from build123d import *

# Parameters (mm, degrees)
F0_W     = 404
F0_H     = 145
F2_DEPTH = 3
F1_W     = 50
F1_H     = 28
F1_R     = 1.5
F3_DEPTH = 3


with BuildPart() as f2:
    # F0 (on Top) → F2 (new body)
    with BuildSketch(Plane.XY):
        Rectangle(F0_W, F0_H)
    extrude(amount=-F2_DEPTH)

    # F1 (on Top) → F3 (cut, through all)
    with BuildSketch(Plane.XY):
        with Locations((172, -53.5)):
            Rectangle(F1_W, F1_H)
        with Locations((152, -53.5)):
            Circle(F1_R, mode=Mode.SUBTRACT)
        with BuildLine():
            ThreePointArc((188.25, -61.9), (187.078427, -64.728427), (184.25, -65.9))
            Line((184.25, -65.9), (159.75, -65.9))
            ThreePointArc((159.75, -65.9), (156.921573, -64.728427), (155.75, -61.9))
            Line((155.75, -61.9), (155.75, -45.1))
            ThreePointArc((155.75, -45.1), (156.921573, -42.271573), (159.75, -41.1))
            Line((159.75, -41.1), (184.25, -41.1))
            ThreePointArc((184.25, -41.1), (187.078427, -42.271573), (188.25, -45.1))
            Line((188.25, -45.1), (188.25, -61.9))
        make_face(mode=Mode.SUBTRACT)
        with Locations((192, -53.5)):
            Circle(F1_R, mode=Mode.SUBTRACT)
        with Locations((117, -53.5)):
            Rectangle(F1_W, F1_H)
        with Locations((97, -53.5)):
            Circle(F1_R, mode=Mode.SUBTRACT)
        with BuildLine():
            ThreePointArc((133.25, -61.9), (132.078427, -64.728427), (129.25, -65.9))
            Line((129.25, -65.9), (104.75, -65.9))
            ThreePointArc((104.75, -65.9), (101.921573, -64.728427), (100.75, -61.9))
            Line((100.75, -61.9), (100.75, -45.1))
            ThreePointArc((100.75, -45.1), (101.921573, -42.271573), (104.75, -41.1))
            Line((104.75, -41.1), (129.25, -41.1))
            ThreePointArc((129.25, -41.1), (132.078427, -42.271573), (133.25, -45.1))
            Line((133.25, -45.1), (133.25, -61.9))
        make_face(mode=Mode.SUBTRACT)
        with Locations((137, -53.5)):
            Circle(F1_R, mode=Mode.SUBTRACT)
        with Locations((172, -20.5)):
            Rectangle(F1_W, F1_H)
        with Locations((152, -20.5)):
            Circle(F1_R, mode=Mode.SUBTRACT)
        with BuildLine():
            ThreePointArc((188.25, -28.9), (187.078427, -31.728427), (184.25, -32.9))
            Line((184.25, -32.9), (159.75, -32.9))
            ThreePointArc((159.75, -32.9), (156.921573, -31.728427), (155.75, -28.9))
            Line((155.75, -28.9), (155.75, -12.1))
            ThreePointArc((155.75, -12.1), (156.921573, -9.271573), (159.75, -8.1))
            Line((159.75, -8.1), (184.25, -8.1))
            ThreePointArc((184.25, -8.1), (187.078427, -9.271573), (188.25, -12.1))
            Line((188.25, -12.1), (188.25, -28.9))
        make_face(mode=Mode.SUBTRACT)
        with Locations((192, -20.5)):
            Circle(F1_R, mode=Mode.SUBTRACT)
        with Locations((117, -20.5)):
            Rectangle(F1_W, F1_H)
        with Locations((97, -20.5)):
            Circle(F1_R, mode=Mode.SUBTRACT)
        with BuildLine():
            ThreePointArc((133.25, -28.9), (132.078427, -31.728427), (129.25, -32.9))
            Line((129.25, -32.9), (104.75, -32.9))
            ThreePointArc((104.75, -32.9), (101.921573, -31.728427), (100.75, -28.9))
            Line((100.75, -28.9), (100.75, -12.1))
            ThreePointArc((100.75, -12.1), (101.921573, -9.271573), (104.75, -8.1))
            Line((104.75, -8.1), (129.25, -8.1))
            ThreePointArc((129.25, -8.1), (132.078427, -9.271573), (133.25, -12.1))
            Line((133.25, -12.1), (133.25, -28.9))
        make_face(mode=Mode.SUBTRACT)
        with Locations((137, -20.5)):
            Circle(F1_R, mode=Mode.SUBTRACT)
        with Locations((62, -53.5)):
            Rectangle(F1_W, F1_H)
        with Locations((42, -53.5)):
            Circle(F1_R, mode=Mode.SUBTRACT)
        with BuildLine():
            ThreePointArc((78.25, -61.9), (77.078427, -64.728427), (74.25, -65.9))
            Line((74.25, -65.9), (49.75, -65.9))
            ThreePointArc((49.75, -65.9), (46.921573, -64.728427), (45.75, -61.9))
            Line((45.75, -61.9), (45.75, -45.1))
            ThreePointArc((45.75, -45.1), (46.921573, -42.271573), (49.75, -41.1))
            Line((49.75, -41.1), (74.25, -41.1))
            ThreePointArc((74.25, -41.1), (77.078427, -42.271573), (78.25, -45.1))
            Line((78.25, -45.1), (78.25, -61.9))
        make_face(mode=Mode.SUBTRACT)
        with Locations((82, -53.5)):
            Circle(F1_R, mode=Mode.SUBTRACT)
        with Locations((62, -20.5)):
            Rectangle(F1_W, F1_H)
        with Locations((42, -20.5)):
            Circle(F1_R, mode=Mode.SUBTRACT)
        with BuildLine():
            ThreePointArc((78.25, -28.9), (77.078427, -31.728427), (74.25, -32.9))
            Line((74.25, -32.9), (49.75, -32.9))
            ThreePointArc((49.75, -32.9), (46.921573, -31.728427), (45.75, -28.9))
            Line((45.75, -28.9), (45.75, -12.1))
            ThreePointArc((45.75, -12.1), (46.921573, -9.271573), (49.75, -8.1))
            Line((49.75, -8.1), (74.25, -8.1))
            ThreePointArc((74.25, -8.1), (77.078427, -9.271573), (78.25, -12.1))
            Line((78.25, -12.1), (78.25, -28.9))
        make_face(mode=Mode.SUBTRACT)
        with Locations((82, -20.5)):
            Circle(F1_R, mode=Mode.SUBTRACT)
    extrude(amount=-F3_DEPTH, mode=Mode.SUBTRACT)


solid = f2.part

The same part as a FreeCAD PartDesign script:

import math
import FreeCAD as App
import Part
import Sketcher


def add_polygon(sketch, points):
    """Adds a closed chain of lines whose ends are joined by coincident constraints."""
    first, n = sketch.GeometryCount, len(points)
    for a, b in zip(points, points[1:] + points[:1]):
        sketch.addGeometry(Part.LineSegment(App.Vector(*a, 0), App.Vector(*b, 0)), False)
    for i in range(n):
        sketch.addConstraint(Sketcher.Constraint("Coincident", first + i, 2, first + (i + 1) % n, 1))

doc = App.newDocument("Part")
body = doc.addObject("PartDesign::Body", "Body")
body.AllowCompound = True

sketch1 = doc.addObject("Sketcher::SketchObject", "Sketch")
body.addObject(sketch1)
sketch1.AttachmentSupport = (doc.XY_Plane, [""])
sketch1.MapMode = "FlatFace"
add_polygon(sketch1, [(-202, 72), (-202, -72), (202, -72), (202, 72)])
sketch1.addConstraint([
    Sketcher.Constraint("Vertical", 0),
    Sketcher.Constraint("Horizontal", 1),
    Sketcher.Constraint("Vertical", 2),
    Sketcher.Constraint("Horizontal", 3),
    Sketcher.Constraint("Symmetric", 0, 2, 2, 2, -1, 1),
    Sketcher.Constraint("DistanceX", 1, 1, 1, 2, 404.0),
    Sketcher.Constraint("DistanceY", 0, 2, 0, 1, 145.0),
])
pad1 = doc.addObject("PartDesign::Pad", "Pad")
body.addObject(pad1)
pad1.Profile = sketch1
pad1.Length = 3
pad1.Reversed = True

sketch2 = doc.addObject("Sketcher::SketchObject", "Sketch001")
body.addObject(sketch2)
sketch2.AttachmentSupport = (doc.XY_Plane, [""])
sketch2.MapMode = "FlatFace"
add_polygon(sketch2, [(147, -39.5), (147, -67.5), (197, -67.5), (197, -39.5)])
sketch2.addGeometry(Part.Circle(App.Vector(152, -53.5, 0), App.Vector(0, 0, 1), 1.5), False)
sketch2.addGeometry(Part.LineSegment(App.Vector(188.2, -45.1, 0), App.Vector(188.2, -61.9, 0)), False)
sketch2.addGeometry(Part.ArcOfCircle(Part.Circle(App.Vector(184.2, -61.9, 0), App.Vector(0, 0, 1), 4), math.radians(-90), math.radians(0)), False)
sketch2.addGeometry(Part.LineSegment(App.Vector(184.2, -65.9, 0), App.Vector(159.8, -65.9, 0)), False)
sketch2.addGeometry(Part.ArcOfCircle(Part.Circle(App.Vector(159.8, -61.9, 0), App.Vector(0, 0, 1), 4), math.radians(-180), math.radians(-90)), False)
sketch2.addGeometry(Part.LineSegment(App.Vector(155.8, -61.9, 0), App.Vector(155.8, -45.1, 0)), False)
sketch2.addGeometry(Part.ArcOfCircle(Part.Circle(App.Vector(159.8, -45.1, 0), App.Vector(0, 0, 1), 4), math.radians(90), math.radians(180)), False)
sketch2.addGeometry(Part.LineSegment(App.Vector(159.8, -41.1, 0), App.Vector(184.2, -41.1, 0)), False)
sketch2.addGeometry(Part.ArcOfCircle(Part.Circle(App.Vector(184.2, -45.1, 0), App.Vector(0, 0, 1), 4), math.radians(0), math.radians(90)), False)
sketch2.addGeometry(Part.Circle(App.Vector(192, -53.5, 0), App.Vector(0, 0, 1), 1.5), False)
add_polygon(sketch2, [(92, -39.5), (92, -67.5), (142, -67.5), (142, -39.5)])
sketch2.addGeometry(Part.Circle(App.Vector(97, -53.5, 0), App.Vector(0, 0, 1), 1.5), False)
sketch2.addGeometry(Part.LineSegment(App.Vector(133.2, -45.1, 0), App.Vector(133.2, -61.9, 0)), False)
sketch2.addGeometry(Part.ArcOfCircle(Part.Circle(App.Vector(129.2, -61.9, 0), App.Vector(0, 0, 1), 4), math.radians(-90), math.radians(0)), False)
sketch2.addGeometry(Part.LineSegment(App.Vector(129.2, -65.9, 0), App.Vector(104.8, -65.9, 0)), False)
sketch2.addGeometry(Part.ArcOfCircle(Part.Circle(App.Vector(104.8, -61.9, 0), App.Vector(0, 0, 1), 4), math.radians(-180), math.radians(-90)), False)
sketch2.addGeometry(Part.LineSegment(App.Vector(100.8, -61.9, 0), App.Vector(100.8, -45.1, 0)), False)
sketch2.addGeometry(Part.ArcOfCircle(Part.Circle(App.Vector(104.8, -45.1, 0), App.Vector(0, 0, 1), 4), math.radians(90), math.radians(180)), False)
sketch2.addGeometry(Part.LineSegment(App.Vector(104.8, -41.1, 0), App.Vector(129.2, -41.1, 0)), False)
sketch2.addGeometry(Part.ArcOfCircle(Part.Circle(App.Vector(129.2, -45.1, 0), App.Vector(0, 0, 1), 4), math.radians(0), math.radians(90)), False)
sketch2.addGeometry(Part.Circle(App.Vector(137, -53.5, 0), App.Vector(0, 0, 1), 1.5), False)
add_polygon(sketch2, [(147, -6.5), (147, -34.5), (197, -34.5), (197, -6.5)])
sketch2.addGeometry(Part.Circle(App.Vector(152, -20.5, 0), App.Vector(0, 0, 1), 1.5), False)
sketch2.addGeometry(Part.LineSegment(App.Vector(188.2, -12.1, 0), App.Vector(188.2, -28.9, 0)), False)
sketch2.addGeometry(Part.ArcOfCircle(Part.Circle(App.Vector(184.2, -28.9, 0), App.Vector(0, 0, 1), 4), math.radians(-90), math.radians(0)), False)
sketch2.addGeometry(Part.LineSegment(App.Vector(184.2, -32.9, 0), App.Vector(159.8, -32.9, 0)), False)
sketch2.addGeometry(Part.ArcOfCircle(Part.Circle(App.Vector(159.8, -28.9, 0), App.Vector(0, 0, 1), 4), math.radians(-180), math.radians(-90)), False)
sketch2.addGeometry(Part.LineSegment(App.Vector(155.8, -28.9, 0), App.Vector(155.8, -12.1, 0)), False)
sketch2.addGeometry(Part.ArcOfCircle(Part.Circle(App.Vector(159.8, -12.1, 0), App.Vector(0, 0, 1), 4), math.radians(90), math.radians(180)), False)
sketch2.addGeometry(Part.LineSegment(App.Vector(159.8, -8.1, 0), App.Vector(184.2, -8.1, 0)), False)
sketch2.addGeometry(Part.ArcOfCircle(Part.Circle(App.Vector(184.2, -12.1, 0), App.Vector(0, 0, 1), 4), math.radians(0), math.radians(90)), False)
sketch2.addGeometry(Part.Circle(App.Vector(192, -20.5, 0), App.Vector(0, 0, 1), 1.5), False)
add_polygon(sketch2, [(92, -6.5), (92, -34.5), (142, -34.5), (142, -6.5)])
sketch2.addGeometry(Part.Circle(App.Vector(97, -20.5, 0), App.Vector(0, 0, 1), 1.5), False)
sketch2.addGeometry(Part.Circle(App.Vector(137, -20.5, 0), App.Vector(0, 0, 1), 1.5), False)
sketch2.addGeometry(Part.LineSegment(App.Vector(133.2, -12.1, 0), App.Vector(133.2, -28.9, 0)), False)
sketch2.addGeometry(Part.ArcOfCircle(Part.Circle(App.Vector(129.2, -28.9, 0), App.Vector(0, 0, 1), 4), math.radians(-90), math.radians(0)), False)
sketch2.addGeometry(Part.LineSegment(App.Vector(129.2, -32.9, 0), App.Vector(104.8, -32.9, 0)), False)
sketch2.addGeometry(Part.ArcOfCircle(Part.Circle(App.Vector(104.8, -28.9, 0), App.Vector(0, 0, 1), 4), math.radians(-180), math.radians(-90)), False)
sketch2.addGeometry(Part.LineSegment(App.Vector(100.8, -28.9, 0), App.Vector(100.8, -12.1, 0)), False)
sketch2.addGeometry(Part.ArcOfCircle(Part.Circle(App.Vector(104.8, -12.1, 0), App.Vector(0, 0, 1), 4), math.radians(90), math.radians(180)), False)
sketch2.addGeometry(Part.LineSegment(App.Vector(104.8, -8.1, 0), App.Vector(129.2, -8.1, 0)), False)
sketch2.addGeometry(Part.ArcOfCircle(Part.Circle(App.Vector(129.2, -12.1, 0), App.Vector(0, 0, 1), 4), math.radians(0), math.radians(90)), False)
add_polygon(sketch2, [(37, -39.5), (37, -67.5), (87, -67.5), (87, -39.5)])
sketch2.addGeometry(Part.Circle(App.Vector(42, -53.5, 0), App.Vector(0, 0, 1), 1.5), False)
sketch2.addGeometry(Part.LineSegment(App.Vector(78.2, -45.1, 0), App.Vector(78.2, -61.9, 0)), False)
sketch2.addGeometry(Part.ArcOfCircle(Part.Circle(App.Vector(74.2, -61.9, 0), App.Vector(0, 0, 1), 4), math.radians(-90), math.radians(0)), False)
sketch2.addGeometry(Part.LineSegment(App.Vector(74.2, -65.9, 0), App.Vector(49.8, -65.9, 0)), False)
sketch2.addGeometry(Part.ArcOfCircle(Part.Circle(App.Vector(49.8, -61.9, 0), App.Vector(0, 0, 1), 4), math.radians(-180), math.radians(-90)), False)
sketch2.addGeometry(Part.LineSegment(App.Vector(45.8, -61.9, 0), App.Vector(45.8, -45.1, 0)), False)
sketch2.addGeometry(Part.ArcOfCircle(Part.Circle(App.Vector(49.8, -45.1, 0), App.Vector(0, 0, 1), 4), math.radians(90), math.radians(180)), False)
sketch2.addGeometry(Part.LineSegment(App.Vector(49.8, -41.1, 0), App.Vector(74.2, -41.1, 0)), False)
sketch2.addGeometry(Part.ArcOfCircle(Part.Circle(App.Vector(74.2, -45.1, 0), App.Vector(0, 0, 1), 4), math.radians(0), math.radians(90)), False)
sketch2.addGeometry(Part.Circle(App.Vector(82, -53.5, 0), App.Vector(0, 0, 1), 1.5), False)
add_polygon(sketch2, [(37, -6.5), (37, -34.5), (87, -34.5), (87, -6.5)])
sketch2.addGeometry(Part.Circle(App.Vector(42, -20.5, 0), App.Vector(0, 0, 1), 1.5), False)
sketch2.addGeometry(Part.Circle(App.Vector(82, -20.5, 0), App.Vector(0, 0, 1), 1.5), False)
sketch2.addGeometry(Part.LineSegment(App.Vector(78.2, -12.1, 0), App.Vector(78.2, -28.9, 0)), False)
sketch2.addGeometry(Part.ArcOfCircle(Part.Circle(App.Vector(74.2, -28.9, 0), App.Vector(0, 0, 1), 4), math.radians(-90), math.radians(0)), False)
sketch2.addGeometry(Part.LineSegment(App.Vector(74.2, -32.9, 0), App.Vector(49.8, -32.9, 0)), False)
sketch2.addGeometry(Part.ArcOfCircle(Part.Circle(App.Vector(49.8, -28.9, 0), App.Vector(0, 0, 1), 4), math.radians(-180), math.radians(-90)), False)
sketch2.addGeometry(Part.LineSegment(App.Vector(45.8, -28.9, 0), App.Vector(45.8, -12.1, 0)), False)
sketch2.addGeometry(Part.ArcOfCircle(Part.Circle(App.Vector(49.8, -12.1, 0), App.Vector(0, 0, 1), 4), math.radians(90), math.radians(180)), False)
sketch2.addGeometry(Part.LineSegment(App.Vector(49.8, -8.1, 0), App.Vector(74.2, -8.1, 0)), False)
sketch2.addGeometry(Part.ArcOfCircle(Part.Circle(App.Vector(74.2, -12.1, 0), App.Vector(0, 0, 1), 4), math.radians(0), math.radians(90)), False)
sketch2.addConstraint([
    Sketcher.Constraint("Tangent", 5, 2, 6, 2),
    Sketcher.Constraint("Tangent", 6, 1, 7, 1),
    Sketcher.Constraint("Tangent", 7, 2, 8, 2),
    Sketcher.Constraint("Tangent", 8, 1, 9, 1),
    Sketcher.Constraint("Tangent", 9, 2, 10, 2),
    Sketcher.Constraint("Tangent", 10, 1, 11, 1),
    Sketcher.Constraint("Tangent", 11, 2, 12, 2),
    Sketcher.Constraint("Tangent", 12, 1, 5, 1),
    Sketcher.Constraint("Tangent", 19, 2, 20, 2),
    Sketcher.Constraint("Tangent", 20, 1, 21, 1),
    Sketcher.Constraint("Tangent", 21, 2, 22, 2),
    Sketcher.Constraint("Tangent", 22, 1, 23, 1),
    Sketcher.Constraint("Tangent", 23, 2, 24, 2),
    Sketcher.Constraint("Tangent", 24, 1, 25, 1),
    Sketcher.Constraint("Tangent", 25, 2, 26, 2),
    Sketcher.Constraint("Tangent", 26, 1, 19, 1),
    Sketcher.Constraint("Tangent", 33, 2, 34, 2),
    Sketcher.Constraint("Tangent", 34, 1, 35, 1),
    Sketcher.Constraint("Tangent", 35, 2, 36, 2),
    Sketcher.Constraint("Tangent", 36, 1, 37, 1),
    Sketcher.Constraint("Tangent", 37, 2, 38, 2),
    Sketcher.Constraint("Tangent", 38, 1, 39, 1),
    Sketcher.Constraint("Tangent", 39, 2, 40, 2),
    Sketcher.Constraint("Tangent", 40, 1, 33, 1),
    Sketcher.Constraint("Tangent", 48, 2, 49, 2),
    Sketcher.Constraint("Tangent", 49, 1, 50, 1),
    Sketcher.Constraint("Tangent", 50, 2, 51, 2),
    Sketcher.Constraint("Tangent", 51, 1, 52, 1),
    Sketcher.Constraint("Tangent", 52, 2, 53, 2),
    Sketcher.Constraint("Tangent", 53, 1, 54, 1),
    Sketcher.Constraint("Tangent", 54, 2, 55, 2),
    Sketcher.Constraint("Tangent", 55, 1, 48, 1),
    Sketcher.Constraint("Tangent", 61, 2, 62, 2),
    Sketcher.Constraint("Tangent", 62, 1, 63, 1),
    Sketcher.Constraint("Tangent", 63, 2, 64, 2),
    Sketcher.Constraint("Tangent", 64, 1, 65, 1),
    Sketcher.Constraint("Tangent", 65, 2, 66, 2),
    Sketcher.Constraint("Tangent", 66, 1, 67, 1),
    Sketcher.Constraint("Tangent", 67, 2, 68, 2),
    Sketcher.Constraint("Tangent", 68, 1, 61, 1),
    Sketcher.Constraint("Tangent", 76, 2, 77, 2),
    Sketcher.Constraint("Tangent", 77, 1, 78, 1),
    Sketcher.Constraint("Tangent", 78, 2, 79, 2),
    Sketcher.Constraint("Tangent", 79, 1, 80, 1),
    Sketcher.Constraint("Tangent", 80, 2, 81, 2),
    Sketcher.Constraint("Tangent", 81, 1, 82, 1),
    Sketcher.Constraint("Tangent", 82, 2, 83, 2),
    Sketcher.Constraint("Tangent", 83, 1, 76, 1),
    Sketcher.Constraint("Vertical", 0),
    Sketcher.Constraint("Horizontal", 1),
    Sketcher.Constraint("Vertical", 2),
    Sketcher.Constraint("Horizontal", 3),
    Sketcher.Constraint("Vertical", 5),
    Sketcher.Constraint("Horizontal", 7),
    Sketcher.Constraint("Vertical", 9),
    Sketcher.Constraint("Horizontal", 11),
    Sketcher.Constraint("Vertical", 14),
    Sketcher.Constraint("Horizontal", 15),
    Sketcher.Constraint("Vertical", 16),
    Sketcher.Constraint("Horizontal", 17),
    Sketcher.Constraint("Vertical", 19),
    Sketcher.Constraint("Horizontal", 21),
    Sketcher.Constraint("Vertical", 23),
    Sketcher.Constraint("Horizontal", 25),
    Sketcher.Constraint("Vertical", 28),
    Sketcher.Constraint("Horizontal", 29),
    Sketcher.Constraint("Vertical", 30),
    Sketcher.Constraint("Horizontal", 31),
    Sketcher.Constraint("Vertical", 33),
    Sketcher.Constraint("Horizontal", 35),
    Sketcher.Constraint("Vertical", 37),
    Sketcher.Constraint("Horizontal", 39),
    Sketcher.Constraint("Vertical", 42),
    Sketcher.Constraint("Horizontal", 43),
    Sketcher.Constraint("Vertical", 44),
    Sketcher.Constraint("Horizontal", 45),
    Sketcher.Constraint("Vertical", 48),
    Sketcher.Constraint("Horizontal", 50),
    Sketcher.Constraint("Vertical", 52),
    Sketcher.Constraint("Horizontal", 54),
    Sketcher.Constraint("Vertical", 56),
    Sketcher.Constraint("Horizontal", 57),
    Sketcher.Constraint("Vertical", 58),
    Sketcher.Constraint("Horizontal", 59),
    Sketcher.Constraint("Vertical", 61),
    Sketcher.Constraint("Horizontal", 63),
    Sketcher.Constraint("Vertical", 65),
    Sketcher.Constraint("Horizontal", 67),
    Sketcher.Constraint("Vertical", 70),
    Sketcher.Constraint("Horizontal", 71),
    Sketcher.Constraint("Vertical", 72),
    Sketcher.Constraint("Horizontal", 73),
    Sketcher.Constraint("Vertical", 76),
    Sketcher.Constraint("Horizontal", 78),
    Sketcher.Constraint("Vertical", 80),
    Sketcher.Constraint("Horizontal", 82),
    Sketcher.Constraint("Equal", 6, 8),
    Sketcher.Constraint("Equal", 8, 10),
    Sketcher.Constraint("Equal", 10, 12),
    Sketcher.Constraint("Equal", 4, 13),
    Sketcher.Constraint("Equal", 13, 18),
    Sketcher.Constraint("Equal", 12, 20),
    Sketcher.Constraint("Equal", 20, 22),
    Sketcher.Constraint("Equal", 22, 24),
    Sketcher.Constraint("Equal", 24, 26),
    Sketcher.Constraint("Equal", 18, 27),
    Sketcher.Constraint("Equal", 27, 32),
    Sketcher.Constraint("Equal", 26, 34),
    Sketcher.Constraint("Equal", 34, 36),
    Sketcher.Constraint("Equal", 36, 38),
    Sketcher.Constraint("Equal", 38, 40),
    Sketcher.Constraint("Equal", 32, 41),
    Sketcher.Constraint("Equal", 41, 46),
    Sketcher.Constraint("Equal", 46, 47),
    Sketcher.Constraint("Equal", 40, 49),
    Sketcher.Constraint("Equal", 49, 51),
    Sketcher.Constraint("Equal", 51, 53),
    Sketcher.Constraint("Equal", 53, 55),
    Sketcher.Constraint("Equal", 47, 60),
    Sketcher.Constraint("Equal", 55, 62),
    Sketcher.Constraint("Equal", 62, 64),
    Sketcher.Constraint("Equal", 64, 66),
    Sketcher.Constraint("Equal", 66, 68),
    Sketcher.Constraint("Equal", 60, 69),
    Sketcher.Constraint("Equal", 69, 74),
    Sketcher.Constraint("Equal", 74, 75),
    Sketcher.Constraint("Equal", 68, 77),
    Sketcher.Constraint("Equal", 77, 79),
    Sketcher.Constraint("Equal", 79, 81),
    Sketcher.Constraint("Equal", 81, 83),
    Sketcher.Constraint("Horizontal", 4, 3, 13, 3),
    Sketcher.Constraint("Horizontal", 13, 3, 18, 3),
    Sketcher.Constraint("Horizontal", 8, 3, 20, 3),
    Sketcher.Constraint("Horizontal", 12, 3, 24, 3),
    Sketcher.Constraint("Horizontal", 18, 3, 27, 3),
    Sketcher.Constraint("Horizontal", 32, 3, 41, 3),
    Sketcher.Constraint("Horizontal", 41, 3, 46, 3),
    Sketcher.Constraint("Horizontal", 46, 3, 47, 3),
    Sketcher.Constraint("Horizontal", 36, 3, 49, 3),
    Sketcher.Constraint("Horizontal", 40, 3, 53, 3),
    Sketcher.Constraint("Horizontal", 27, 3, 60, 3),
    Sketcher.Constraint("Horizontal", 22, 3, 62, 3),
    Sketcher.Constraint("Horizontal", 26, 3, 66, 3),
    Sketcher.Constraint("Horizontal", 60, 3, 69, 3),
    Sketcher.Constraint("Horizontal", 47, 3, 74, 3),
    Sketcher.Constraint("Horizontal", 74, 3, 75, 3),
    Sketcher.Constraint("Horizontal", 51, 3, 77, 3),
    Sketcher.Constraint("Horizontal", 55, 3, 81, 3),
    Sketcher.Constraint("Horizontal", 1, 2, 14, 2),
    Sketcher.Constraint("Horizontal", 3, 2, 16, 2),
    Sketcher.Constraint("Horizontal", 29, 2, 42, 2),
    Sketcher.Constraint("Horizontal", 31, 2, 44, 2),
    Sketcher.Constraint("Horizontal", 15, 2, 56, 2),
    Sketcher.Constraint("Horizontal", 17, 2, 58, 2),
    Sketcher.Constraint("Horizontal", 43, 2, 70, 2),
    Sketcher.Constraint("Horizontal", 45, 2, 72, 2),
    Sketcher.Constraint("Vertical", 4, 3, 32, 3),
    Sketcher.Constraint("Vertical", 12, 3, 34, 3),
    Sketcher.Constraint("Vertical", 10, 3, 36, 3),
    Sketcher.Constraint("Vertical", 13, 3, 41, 3),
    Sketcher.Constraint("Vertical", 18, 3, 46, 3),
    Sketcher.Constraint("Vertical", 27, 3, 47, 3),
    Sketcher.Constraint("Vertical", 26, 3, 49, 3),
    Sketcher.Constraint("Vertical", 24, 3, 51, 3),
    Sketcher.Constraint("Vertical", 60, 3, 74, 3),
    Sketcher.Constraint("Vertical", 69, 3, 75, 3),
    Sketcher.Constraint("Vertical", 68, 3, 77, 3),
    Sketcher.Constraint("Vertical", 66, 3, 79, 3),
    Sketcher.Constraint("Vertical", 3, 2, 28, 2),
    Sketcher.Constraint("Vertical", 2, 2, 29, 2),
    Sketcher.Constraint("Vertical", 17, 2, 42, 2),
    Sketcher.Constraint("Vertical", 16, 2, 43, 2),
    Sketcher.Constraint("Vertical", 59, 2, 70, 2),
    Sketcher.Constraint("Vertical", 58, 2, 71, 2),
    Sketcher.Constraint("Equal", 3, 15),
    Sketcher.Constraint("Equal", 11, 21),
    Sketcher.Constraint("Equal", 45, 57),
    Sketcher.Constraint("Equal", 54, 63),
    Sketcher.Constraint("Equal", 16, 28),
    Sketcher.Constraint("Equal", 23, 33),
    Sketcher.Constraint("Diameter", 4, 3.0),
    Sketcher.Constraint("Radius", 6, 4.0),
    Sketcher.Constraint("DistanceX", 1, 1, 1, 2, 50.0),
    Sketcher.Constraint("DistanceY", 0, 2, 0, 1, 28.0),
    Sketcher.Constraint("DistanceX", 7, 2, 7, 1, 24.5),
    Sketcher.Constraint("DistanceY", 5, 2, 5, 1, 16.8),
    Sketcher.Constraint("DistanceX", -1, 1, 4, 3, 152.0),
    Sketcher.Constraint("DistanceX", -1, 1, 13, 3, 192.0),
    Sketcher.Constraint("DistanceX", -1, 1, 18, 3, 97.0),
    Sketcher.Constraint("DistanceX", -1, 1, 27, 3, 137.0),
    Sketcher.Constraint("DistanceX", -1, 1, 60, 3, 42.0),
    Sketcher.Constraint("DistanceX", -1, 1, 69, 3, 82.0),
    Sketcher.Constraint("DistanceX", -1, 1, 0, 2, 147.0),
    Sketcher.Constraint("DistanceX", -1, 1, 14, 2, 92.0),
    Sketcher.Constraint("DistanceX", -1, 1, 56, 2, 37.0),
    Sketcher.Constraint("DistanceY", 4, 3, -1, 1, 53.5),
    Sketcher.Constraint("DistanceY", 6, 3, -1, 1, 61.9),
    Sketcher.Constraint("DistanceY", 32, 3, -1, 1, 20.5),
    Sketcher.Constraint("DistanceY", 34, 3, -1, 1, 28.9),
    Sketcher.Constraint("DistanceY", 0, 2, -1, 1, 67.5),
    Sketcher.Constraint("DistanceY", 28, 2, -1, 1, 34.5),
    Sketcher.Constraint("DistanceX", -1, 1, 6, 3, 184.25),
    Sketcher.Constraint("DistanceX", -1, 1, 20, 3, 129.25),
    Sketcher.Constraint("DistanceX", -1, 1, 62, 3, 74.25),
])
pocket1 = doc.addObject("PartDesign::Pocket", "Pocket")
body.addObject(pocket1)
pocket1.Profile = sketch2
pocket1.Type = "ThroughAll"

doc.recompute()
